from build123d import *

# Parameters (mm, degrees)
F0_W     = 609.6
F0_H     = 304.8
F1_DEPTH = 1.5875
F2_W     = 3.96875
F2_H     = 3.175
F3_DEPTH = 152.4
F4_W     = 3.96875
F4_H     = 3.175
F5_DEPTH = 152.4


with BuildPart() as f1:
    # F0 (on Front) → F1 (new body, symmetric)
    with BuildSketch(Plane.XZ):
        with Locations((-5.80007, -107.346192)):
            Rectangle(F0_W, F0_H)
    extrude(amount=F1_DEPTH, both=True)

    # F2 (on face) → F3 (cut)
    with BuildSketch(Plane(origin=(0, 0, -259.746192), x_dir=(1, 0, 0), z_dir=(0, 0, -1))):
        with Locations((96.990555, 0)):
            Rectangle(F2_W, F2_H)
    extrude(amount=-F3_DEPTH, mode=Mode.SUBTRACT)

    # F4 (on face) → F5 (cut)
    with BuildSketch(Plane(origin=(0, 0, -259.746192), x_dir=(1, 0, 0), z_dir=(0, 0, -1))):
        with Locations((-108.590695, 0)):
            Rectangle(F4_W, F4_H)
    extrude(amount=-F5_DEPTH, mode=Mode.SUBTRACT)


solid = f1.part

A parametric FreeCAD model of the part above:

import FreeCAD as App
import Part
import Sketcher
from FreeCAD import Vector
Q = App.Units.Quantity


def add_polygon(sketch, points):
    """Adds a closed chain of lines whose ends are joined by coincident constraints."""
    first, n = sketch.GeometryCount, len(points)
    for a, b in zip(points, points[1:] + points[:1]):
        sketch.addGeometry(Part.LineSegment(App.Vector(*a, 0), App.Vector(*b, 0)), False)
    for i in range(n):
        sketch.addConstraint(Sketcher.Constraint("Coincident", first + i, 2, first + (i + 1) % n, 1))

doc = App.newDocument("Part")
body = doc.addObject("PartDesign::Body", "Body")

# Sketch on XZ plane
sketch1 = body.newObject("Sketcher::SketchObject", "Sketch")
sketch1.AttachmentSupport = (doc.getObject("XZ_Plane"), [""])
sketch1.MapMode = "FlatFace"
add_polygon(sketch1, [(-311, 45), (-311, -260), (299, -260), (299, 45)])  # lines 0-3
sketch1.addConstraint([
    Sketcher.Constraint("Vertical", 0),
    Sketcher.Constraint("Horizontal", 1),
    Sketcher.Constraint("Vertical", 2),
    Sketcher.Constraint("Horizontal", 3),
    Sketcher.Constraint("DistanceX", 1, 1, 1, 2, Q("24 in")),
    Sketcher.Constraint("DistanceY", 0, 2, 0, 1, Q("12 in")),
    Sketcher.Constraint("DistanceX", 0, 2, -1, 1, 310.60007),
    Sketcher.Constraint("DistanceY", 0, 2, -1, 1, 259.746192),
])
pad1 = body.newObject("PartDesign::Pad", "Pad")
pad1.Profile = sketch1
pad1.Length = Q("0.125 in")
pad1.Midplane = True

# Sketch on XY plane
sketch2 = body.newObject("Sketcher::SketchObject", "Sketch001")
sketch2.AttachmentSupport = (doc.getObject("XY_Plane"), [""])
sketch2.MapMode = "FlatFace"
sketch2.AttachmentOffset = App.Placement(Vector(0, 0, -259.746192), App.Rotation())
add_polygon(sketch2, [(95, -1.6), (95, 1.6), (99, 1.6), (99, -1.6)])  # lines 0-3
sketch2.addConstraint([
    Sketcher.Constraint("Vertical", 0),
    Sketcher.Constraint("Horizontal", 1),
    Sketcher.Constraint("Vertical", 2),
    Sketcher.Constraint("Horizontal", 3),
    Sketcher.Constraint("DistanceX", 1, 1, 1, 2, Q("0.15625 in")),
    Sketcher.Constraint("DistanceY", 0, 1, 0, 2, Q("0.125 in")),
    Sketcher.Constraint("DistanceY", -1, 1, 0, 2, Q("0.0625 in")),
    Sketcher.Constraint("DistanceX", -1, 1, 0, 2, 95.00618),
])
pocket1 = body.newObject("PartDesign::Pocket", "Pocket")
pocket1.Profile = sketch2
pocket1.Length = Q("6 in")
pocket1.Reversed = True

# Sketch on XY plane
sketch3 = body.newObject("Sketcher::SketchObject", "Sketch002")
sketch3.AttachmentSupport = (doc.getObject("XY_Plane"), [""])
sketch3.MapMode = "FlatFace"
sketch3.AttachmentOffset = App.Placement(Vector(0, 0, -259.746192), App.Rotation())
add_polygon(sketch3, [(-110.6, -1.6), (-110.6, 1.6), (-106.6, 1.6), (-106.6, -1.6)])  # lines 0-3
sketch3.addConstraint([
    Sketcher.Constraint("Vertical", 0),
    Sketcher.Constraint("Horizontal", 1),
    Sketcher.Constraint("Vertical", 2),
    Sketcher.Constraint("Horizontal", 3),
    Sketcher.Constraint("DistanceX", 1, 1, 1, 2, Q("0.15625 in")),
    Sketcher.Constraint("DistanceY", 0, 1, 0, 2, Q("0.125 in")),
    Sketcher.Constraint("DistanceY", -1, 1, 0, 2, Q("0.0625 in")),
    Sketcher.Constraint("DistanceX", 0, 2, -1, 1, 110.57507),
])
pocket2 = body.newObject("PartDesign::Pocket", "Pocket001")
pocket2.Profile = sketch3
pocket2.Length = Q("6 in")
pocket2.Reversed = True

doc.recompute()
